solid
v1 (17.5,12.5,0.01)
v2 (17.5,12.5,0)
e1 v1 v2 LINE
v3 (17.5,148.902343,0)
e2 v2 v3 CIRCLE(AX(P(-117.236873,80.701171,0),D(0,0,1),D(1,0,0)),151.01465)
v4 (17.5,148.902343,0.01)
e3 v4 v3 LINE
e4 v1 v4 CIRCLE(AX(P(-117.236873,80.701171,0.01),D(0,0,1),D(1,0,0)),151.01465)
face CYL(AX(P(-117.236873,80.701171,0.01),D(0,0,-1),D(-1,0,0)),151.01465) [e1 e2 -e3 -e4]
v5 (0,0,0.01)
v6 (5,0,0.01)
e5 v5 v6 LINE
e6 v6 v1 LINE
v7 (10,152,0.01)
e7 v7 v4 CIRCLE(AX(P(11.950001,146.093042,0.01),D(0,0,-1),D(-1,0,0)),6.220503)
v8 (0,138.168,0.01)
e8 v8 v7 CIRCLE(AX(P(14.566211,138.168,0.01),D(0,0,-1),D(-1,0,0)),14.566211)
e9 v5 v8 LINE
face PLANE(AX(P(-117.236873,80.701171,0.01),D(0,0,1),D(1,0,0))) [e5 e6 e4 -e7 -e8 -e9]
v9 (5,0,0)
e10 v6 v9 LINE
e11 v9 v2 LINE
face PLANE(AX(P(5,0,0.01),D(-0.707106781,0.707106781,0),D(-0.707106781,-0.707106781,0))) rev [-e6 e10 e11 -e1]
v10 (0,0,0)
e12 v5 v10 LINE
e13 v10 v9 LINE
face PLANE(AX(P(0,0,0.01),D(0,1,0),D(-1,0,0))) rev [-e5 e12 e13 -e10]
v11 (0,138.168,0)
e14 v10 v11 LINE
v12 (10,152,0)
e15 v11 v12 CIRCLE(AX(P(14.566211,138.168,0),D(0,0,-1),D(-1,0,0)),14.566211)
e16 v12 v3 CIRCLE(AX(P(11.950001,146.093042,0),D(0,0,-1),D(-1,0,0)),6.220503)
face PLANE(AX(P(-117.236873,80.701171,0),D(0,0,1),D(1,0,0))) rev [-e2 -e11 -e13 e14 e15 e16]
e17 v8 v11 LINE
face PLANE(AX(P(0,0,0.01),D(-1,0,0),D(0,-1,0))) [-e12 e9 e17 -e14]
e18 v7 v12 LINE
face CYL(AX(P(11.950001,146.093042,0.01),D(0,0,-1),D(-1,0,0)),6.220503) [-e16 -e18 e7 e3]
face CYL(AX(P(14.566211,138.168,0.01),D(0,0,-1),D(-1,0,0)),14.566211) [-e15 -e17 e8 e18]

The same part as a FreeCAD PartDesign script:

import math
import FreeCAD as App
import Part
import Sketcher
from FreeCAD import Vector
Q = App.Units.Quantity

doc = App.newDocument("Part")
params = doc.addObject("Spreadsheet::Sheet", "Params")
for row, (alias, value) in enumerate([
    ("sketch1_width", "5 mm"),
    ("pad1_length", "0.01 mm"),
], start=1):
    params.set(f"A{row}", alias)
    params.set(f"B{row}", "=" + value)
    params.setAlias(f"B{row}", alias)

body = doc.addObject("PartDesign::Body", "Body")

# Sketch on XY plane
sketch1 = doc.addObject("Sketcher::SketchObject", "Sketch")
body.addObject(sketch1)
sketch1.AttachmentSupport = (doc.XY_Plane, [""])
sketch1.MapMode = "FlatFace"
sketch1.addGeometry([
    Part.LineSegment(Vector(0, 138, 0), Vector(0, 0, 0)),  # 0
    Part.LineSegment(Vector(0, 0, 0), Vector(5, 0, 0)),  # 1
    Part.LineSegment(Vector(5, 0, 0), Vector(18, 12, 0)),  # 2
    Part.ArcOfCircle(Part.Circle(Vector(-117, 81, 0), Vector(0, 0, 1), 151), math.radians(-27), math.radians(27)),  # 3
    Part.ArcOfCircle(Part.Circle(Vector(12, 146, 0), Vector(0, 0, 1), 6), math.radians(27), math.radians(108)),  # 4
    Part.ArcOfCircle(Part.Circle(Vector(15, 138, 0), Vector(0, 0, 1), 15), math.radians(108), math.radians(180)),  # 5
], False)
sketch1.addConstraint([
    Sketcher.Constraint("Coincident", 0, 2, 1, 1),
    Sketcher.Constraint("Coincident", 1, 2, 2, 1),
    Sketcher.Constraint("Coincident", 2, 2, 3, 1),
    Sketcher.Constraint("Tangent", 3, 2, 4, 1),
    Sketcher.Constraint("Tangent", 4, 2, 5, 1),
    Sketcher.Constraint("Tangent", 5, 2, 0, 1),
    Sketcher.Constraint("Vertical", 0),
    Sketcher.Constraint("Horizontal", 1),
    Sketcher.Constraint("Coincident", 0, 2, -1, 1),
    Sketcher.Constraint("Vertical", 2, 2, 3, 2),
    Sketcher.Constraint("DistanceX", 1, 1, 1, 2, 5.0),
    Sketcher.Constraint("Angle", 2, Q("45 deg")),
    Sketcher.Constraint("DistanceX", -1, 1, 4, 2, 10.0),
    Sketcher.Constraint("DistanceY", -1, 1, 4, 2, 152.0),
    Sketcher.Constraint("DistanceX", -1, 1, 2, 2, 17.5),
    Sketcher.Constraint("DistanceY", 0, 2, 0, 1, 138.168),
    Sketcher.Constraint("Radius", 3, 151.01465),
])
sketch1.setExpression("Constraints[10]", "Params.sketch1_width")
pad1 = doc.addObject("PartDesign::Pad", "Pad")
body.addObject(pad1)
pad1.Profile = sketch1
pad1.setExpression("Length", "Params.pad1_length")

doc.recompute()
